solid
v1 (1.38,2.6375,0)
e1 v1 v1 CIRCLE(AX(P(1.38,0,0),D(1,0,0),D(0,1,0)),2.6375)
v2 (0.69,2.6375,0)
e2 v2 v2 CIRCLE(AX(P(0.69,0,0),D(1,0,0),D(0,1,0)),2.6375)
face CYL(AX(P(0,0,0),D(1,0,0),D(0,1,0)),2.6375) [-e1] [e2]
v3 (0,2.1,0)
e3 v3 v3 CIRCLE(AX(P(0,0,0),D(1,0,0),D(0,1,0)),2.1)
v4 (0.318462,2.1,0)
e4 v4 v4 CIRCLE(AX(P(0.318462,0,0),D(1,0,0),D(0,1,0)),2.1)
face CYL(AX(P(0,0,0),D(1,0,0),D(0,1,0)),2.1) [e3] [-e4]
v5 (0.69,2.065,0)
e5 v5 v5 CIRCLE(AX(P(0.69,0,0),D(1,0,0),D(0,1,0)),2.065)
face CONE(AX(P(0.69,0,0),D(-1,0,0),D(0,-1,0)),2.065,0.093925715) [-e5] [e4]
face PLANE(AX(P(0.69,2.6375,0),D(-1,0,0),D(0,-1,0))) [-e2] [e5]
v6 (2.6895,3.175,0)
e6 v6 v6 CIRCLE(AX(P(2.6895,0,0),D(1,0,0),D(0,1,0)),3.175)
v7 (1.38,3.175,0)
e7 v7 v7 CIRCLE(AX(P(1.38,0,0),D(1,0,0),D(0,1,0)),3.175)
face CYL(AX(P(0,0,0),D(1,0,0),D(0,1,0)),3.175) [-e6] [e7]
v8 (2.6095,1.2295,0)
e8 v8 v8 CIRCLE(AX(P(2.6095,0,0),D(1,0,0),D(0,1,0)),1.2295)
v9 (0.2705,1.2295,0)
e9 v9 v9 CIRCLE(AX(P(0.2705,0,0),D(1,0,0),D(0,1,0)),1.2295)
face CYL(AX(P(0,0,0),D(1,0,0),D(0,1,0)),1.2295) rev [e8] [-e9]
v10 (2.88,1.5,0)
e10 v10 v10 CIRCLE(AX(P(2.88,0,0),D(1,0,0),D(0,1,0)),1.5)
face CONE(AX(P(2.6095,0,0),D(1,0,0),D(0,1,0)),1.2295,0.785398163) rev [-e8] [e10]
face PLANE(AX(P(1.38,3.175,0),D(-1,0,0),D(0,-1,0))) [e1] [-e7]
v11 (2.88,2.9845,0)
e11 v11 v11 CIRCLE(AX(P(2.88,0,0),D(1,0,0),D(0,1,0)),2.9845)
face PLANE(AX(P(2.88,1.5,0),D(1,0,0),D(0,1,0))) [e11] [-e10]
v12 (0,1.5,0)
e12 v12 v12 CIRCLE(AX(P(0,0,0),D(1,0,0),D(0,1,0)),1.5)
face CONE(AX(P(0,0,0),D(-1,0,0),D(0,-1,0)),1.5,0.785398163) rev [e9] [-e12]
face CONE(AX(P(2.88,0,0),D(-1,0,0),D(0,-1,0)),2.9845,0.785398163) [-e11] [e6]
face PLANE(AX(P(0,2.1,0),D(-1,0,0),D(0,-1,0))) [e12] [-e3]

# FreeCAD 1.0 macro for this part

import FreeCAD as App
import Part
import Sketcher

doc = App.newDocument("Part")
body = doc.addObject("PartDesign::Body", "Body")

# Sketch on XY plane
sketch1 = body.newObject("Sketcher::SketchObject", "Sketch")
sketch1.AttachmentSupport = (doc.getObject("XY_Plane"), [""])
sketch1.MapMode = "FlatFace"
sketch1.addGeometry(Part.LineSegment(App.Vector(0.69, 2.06, 0), App.Vector(0.32, 2.1, 0)), False)
sketch1.addGeometry(Part.LineSegment(App.Vector(0.32, 2.1, 0), App.Vector(0, 2.1, 0)), False)
sketch1.addGeometry(Part.LineSegment(App.Vector(0, 2.1, 0), App.Vector(0, 1.5, 0)), False)
sketch1.addGeometry(Part.LineSegment(App.Vector(0, 1.5, 0), App.Vector(0.27, 1.23, 0)), False)
sketch1.addGeometry(Part.LineSegment(App.Vector(0.27, 1.23, 0), App.Vector(2.61, 1.23, 0)), False)
sketch1.addGeometry(Part.LineSegment(App.Vector(2.61, 1.23, 0), App.Vector(2.88, 1.5, 0)), False)
sketch1.addGeometry(Part.LineSegment(App.Vector(2.88, 1.5, 0), App.Vector(2.88, 2.98, 0)), False)
sketch1.addGeometry(Part.LineSegment(App.Vector(2.88, 2.98, 0), App.Vector(2.69, 3.17, 0)), False)
sketch1.addGeometry(Part.LineSegment(App.Vector(2.69, 3.17, 0), App.Vector(1.38, 3.17, 0)), False)
sketch1.addGeometry(Part.LineSegment(App.Vector(1.38, 3.17, 0), App.Vector(1.38, 2.64, 0)), False)
sketch1.addGeometry(Part.LineSegment(App.Vector(1.38, 2.64, 0), App.Vector(0.69, 2.64, 0)), False)
sketch1.addGeometry(Part.LineSegment(App.Vector(0.69, 2.64, 0), App.Vector(0.69, 2.06, 0)), False)
sketch1.addConstraint(Sketcher.Constraint("Coincident", 0, 2, 1, 1))
sketch1.addConstraint(Sketcher.Constraint("Coincident", 1, 2, 2, 1))
sketch1.addConstraint(Sketcher.Constraint("Coincident", 2, 2, 3, 1))
sketch1.addConstraint(Sketcher.Constraint("Coincident", 3, 2, 4, 1))
sketch1.addConstraint(Sketcher.Constraint("Coincident", 4, 2, 5, 1))
sketch1.addConstraint(Sketcher.Constraint("Coincident", 5, 2, 6, 1))
sketch1.addConstraint(Sketcher.Constraint("Coincident", 6, 2, 7, 1))
sketch1.addConstraint(Sketcher.Constraint("Coincident", 7, 2, 8, 1))
sketch1.addConstraint(Sketcher.Constraint("Coincident", 8, 2, 9, 1))
sketch1.addConstraint(Sketcher.Constraint("Coincident", 9, 2, 10, 1))
sketch1.addConstraint(Sketcher.Constraint("Coincident", 10, 2, 11, 1))
sketch1.addConstraint(Sketcher.Constraint("Coincident", 11, 2, 0, 1))
sketch1.addConstraint(Sketcher.Constraint("Horizontal", 1))
sketch1.addConstraint(Sketcher.Constraint("Vertical", 2))
sketch1.addConstraint(Sketcher.Constraint("Horizontal", 4))
sketch1.addConstraint(Sketcher.Constraint("Vertical", 6))
sketch1.addConstraint(Sketcher.Constraint("Horizontal", 8))
sketch1.addConstraint(Sketcher.Constraint("Vertical", 9))
sketch1.addConstraint(Sketcher.Constraint("Horizontal", 10))
sketch1.addConstraint(Sketcher.Constraint("Vertical", 11))
sketch1.addConstraint(Sketcher.Constraint("PointOnObject", 1, 2, -2))
sketch1.addConstraint(Sketcher.Constraint("Perpendicular", 3, 5))
sketch1.addConstraint(Sketcher.Constraint("Perpendicular", 5, 7))
sketch1.addConstraint(Sketcher.Constraint("Horizontal", 2, 2, 5, 2))
sketch1.addConstraint(Sketcher.Constraint("Equal", 3, 5))
sketch1.addConstraint(Sketcher.Constraint("DistanceY", 2, 2, 2, 1, 0.6))
sketch1.addConstraint(Sketcher.Constraint("DistanceX", 10, 2, 10, 1, 0.69))
sketch1.addConstraint(Sketcher.Constraint("DistanceY", -1, 1, 0, 2, 2.1))
sketch1.addConstraint(Sketcher.Constraint("DistanceX", 8, 2, 6, 2, 1.5))
sketch1.addConstraint(Sketcher.Constraint("DistanceX", 4, 1, 4, 2, 2.339))
sketch1.addConstraint(Sketcher.Constraint("DistanceX", -1, 1, 5, 2, 2.88))
sketch1.addConstraint(Sketcher.Constraint("DistanceX", 4, 2, 7, 2, 0.08))
sketch1.addConstraint(Sketcher.Constraint("DistanceY", 6, 1, 6, 2, 1.4845))
sketch1.addConstraint(Sketcher.Constraint("DistanceY", 9, 2, 9, 1, 0.5375))
sketch1.addConstraint(Sketcher.Constraint("DistanceY", 11, 2, 11, 1, 0.5725))
sketch1.addConstraint(Sketcher.Constraint("DistanceX", 1, 2, 1, 1, 0.318462))
revolution = body.newObject("PartDesign::Revolution", "Revolution")
revolution.Profile = sketch1
revolution.ReferenceAxis = (sketch1, ["H_Axis"])
revolution.Angle = 360

doc.recompute()
